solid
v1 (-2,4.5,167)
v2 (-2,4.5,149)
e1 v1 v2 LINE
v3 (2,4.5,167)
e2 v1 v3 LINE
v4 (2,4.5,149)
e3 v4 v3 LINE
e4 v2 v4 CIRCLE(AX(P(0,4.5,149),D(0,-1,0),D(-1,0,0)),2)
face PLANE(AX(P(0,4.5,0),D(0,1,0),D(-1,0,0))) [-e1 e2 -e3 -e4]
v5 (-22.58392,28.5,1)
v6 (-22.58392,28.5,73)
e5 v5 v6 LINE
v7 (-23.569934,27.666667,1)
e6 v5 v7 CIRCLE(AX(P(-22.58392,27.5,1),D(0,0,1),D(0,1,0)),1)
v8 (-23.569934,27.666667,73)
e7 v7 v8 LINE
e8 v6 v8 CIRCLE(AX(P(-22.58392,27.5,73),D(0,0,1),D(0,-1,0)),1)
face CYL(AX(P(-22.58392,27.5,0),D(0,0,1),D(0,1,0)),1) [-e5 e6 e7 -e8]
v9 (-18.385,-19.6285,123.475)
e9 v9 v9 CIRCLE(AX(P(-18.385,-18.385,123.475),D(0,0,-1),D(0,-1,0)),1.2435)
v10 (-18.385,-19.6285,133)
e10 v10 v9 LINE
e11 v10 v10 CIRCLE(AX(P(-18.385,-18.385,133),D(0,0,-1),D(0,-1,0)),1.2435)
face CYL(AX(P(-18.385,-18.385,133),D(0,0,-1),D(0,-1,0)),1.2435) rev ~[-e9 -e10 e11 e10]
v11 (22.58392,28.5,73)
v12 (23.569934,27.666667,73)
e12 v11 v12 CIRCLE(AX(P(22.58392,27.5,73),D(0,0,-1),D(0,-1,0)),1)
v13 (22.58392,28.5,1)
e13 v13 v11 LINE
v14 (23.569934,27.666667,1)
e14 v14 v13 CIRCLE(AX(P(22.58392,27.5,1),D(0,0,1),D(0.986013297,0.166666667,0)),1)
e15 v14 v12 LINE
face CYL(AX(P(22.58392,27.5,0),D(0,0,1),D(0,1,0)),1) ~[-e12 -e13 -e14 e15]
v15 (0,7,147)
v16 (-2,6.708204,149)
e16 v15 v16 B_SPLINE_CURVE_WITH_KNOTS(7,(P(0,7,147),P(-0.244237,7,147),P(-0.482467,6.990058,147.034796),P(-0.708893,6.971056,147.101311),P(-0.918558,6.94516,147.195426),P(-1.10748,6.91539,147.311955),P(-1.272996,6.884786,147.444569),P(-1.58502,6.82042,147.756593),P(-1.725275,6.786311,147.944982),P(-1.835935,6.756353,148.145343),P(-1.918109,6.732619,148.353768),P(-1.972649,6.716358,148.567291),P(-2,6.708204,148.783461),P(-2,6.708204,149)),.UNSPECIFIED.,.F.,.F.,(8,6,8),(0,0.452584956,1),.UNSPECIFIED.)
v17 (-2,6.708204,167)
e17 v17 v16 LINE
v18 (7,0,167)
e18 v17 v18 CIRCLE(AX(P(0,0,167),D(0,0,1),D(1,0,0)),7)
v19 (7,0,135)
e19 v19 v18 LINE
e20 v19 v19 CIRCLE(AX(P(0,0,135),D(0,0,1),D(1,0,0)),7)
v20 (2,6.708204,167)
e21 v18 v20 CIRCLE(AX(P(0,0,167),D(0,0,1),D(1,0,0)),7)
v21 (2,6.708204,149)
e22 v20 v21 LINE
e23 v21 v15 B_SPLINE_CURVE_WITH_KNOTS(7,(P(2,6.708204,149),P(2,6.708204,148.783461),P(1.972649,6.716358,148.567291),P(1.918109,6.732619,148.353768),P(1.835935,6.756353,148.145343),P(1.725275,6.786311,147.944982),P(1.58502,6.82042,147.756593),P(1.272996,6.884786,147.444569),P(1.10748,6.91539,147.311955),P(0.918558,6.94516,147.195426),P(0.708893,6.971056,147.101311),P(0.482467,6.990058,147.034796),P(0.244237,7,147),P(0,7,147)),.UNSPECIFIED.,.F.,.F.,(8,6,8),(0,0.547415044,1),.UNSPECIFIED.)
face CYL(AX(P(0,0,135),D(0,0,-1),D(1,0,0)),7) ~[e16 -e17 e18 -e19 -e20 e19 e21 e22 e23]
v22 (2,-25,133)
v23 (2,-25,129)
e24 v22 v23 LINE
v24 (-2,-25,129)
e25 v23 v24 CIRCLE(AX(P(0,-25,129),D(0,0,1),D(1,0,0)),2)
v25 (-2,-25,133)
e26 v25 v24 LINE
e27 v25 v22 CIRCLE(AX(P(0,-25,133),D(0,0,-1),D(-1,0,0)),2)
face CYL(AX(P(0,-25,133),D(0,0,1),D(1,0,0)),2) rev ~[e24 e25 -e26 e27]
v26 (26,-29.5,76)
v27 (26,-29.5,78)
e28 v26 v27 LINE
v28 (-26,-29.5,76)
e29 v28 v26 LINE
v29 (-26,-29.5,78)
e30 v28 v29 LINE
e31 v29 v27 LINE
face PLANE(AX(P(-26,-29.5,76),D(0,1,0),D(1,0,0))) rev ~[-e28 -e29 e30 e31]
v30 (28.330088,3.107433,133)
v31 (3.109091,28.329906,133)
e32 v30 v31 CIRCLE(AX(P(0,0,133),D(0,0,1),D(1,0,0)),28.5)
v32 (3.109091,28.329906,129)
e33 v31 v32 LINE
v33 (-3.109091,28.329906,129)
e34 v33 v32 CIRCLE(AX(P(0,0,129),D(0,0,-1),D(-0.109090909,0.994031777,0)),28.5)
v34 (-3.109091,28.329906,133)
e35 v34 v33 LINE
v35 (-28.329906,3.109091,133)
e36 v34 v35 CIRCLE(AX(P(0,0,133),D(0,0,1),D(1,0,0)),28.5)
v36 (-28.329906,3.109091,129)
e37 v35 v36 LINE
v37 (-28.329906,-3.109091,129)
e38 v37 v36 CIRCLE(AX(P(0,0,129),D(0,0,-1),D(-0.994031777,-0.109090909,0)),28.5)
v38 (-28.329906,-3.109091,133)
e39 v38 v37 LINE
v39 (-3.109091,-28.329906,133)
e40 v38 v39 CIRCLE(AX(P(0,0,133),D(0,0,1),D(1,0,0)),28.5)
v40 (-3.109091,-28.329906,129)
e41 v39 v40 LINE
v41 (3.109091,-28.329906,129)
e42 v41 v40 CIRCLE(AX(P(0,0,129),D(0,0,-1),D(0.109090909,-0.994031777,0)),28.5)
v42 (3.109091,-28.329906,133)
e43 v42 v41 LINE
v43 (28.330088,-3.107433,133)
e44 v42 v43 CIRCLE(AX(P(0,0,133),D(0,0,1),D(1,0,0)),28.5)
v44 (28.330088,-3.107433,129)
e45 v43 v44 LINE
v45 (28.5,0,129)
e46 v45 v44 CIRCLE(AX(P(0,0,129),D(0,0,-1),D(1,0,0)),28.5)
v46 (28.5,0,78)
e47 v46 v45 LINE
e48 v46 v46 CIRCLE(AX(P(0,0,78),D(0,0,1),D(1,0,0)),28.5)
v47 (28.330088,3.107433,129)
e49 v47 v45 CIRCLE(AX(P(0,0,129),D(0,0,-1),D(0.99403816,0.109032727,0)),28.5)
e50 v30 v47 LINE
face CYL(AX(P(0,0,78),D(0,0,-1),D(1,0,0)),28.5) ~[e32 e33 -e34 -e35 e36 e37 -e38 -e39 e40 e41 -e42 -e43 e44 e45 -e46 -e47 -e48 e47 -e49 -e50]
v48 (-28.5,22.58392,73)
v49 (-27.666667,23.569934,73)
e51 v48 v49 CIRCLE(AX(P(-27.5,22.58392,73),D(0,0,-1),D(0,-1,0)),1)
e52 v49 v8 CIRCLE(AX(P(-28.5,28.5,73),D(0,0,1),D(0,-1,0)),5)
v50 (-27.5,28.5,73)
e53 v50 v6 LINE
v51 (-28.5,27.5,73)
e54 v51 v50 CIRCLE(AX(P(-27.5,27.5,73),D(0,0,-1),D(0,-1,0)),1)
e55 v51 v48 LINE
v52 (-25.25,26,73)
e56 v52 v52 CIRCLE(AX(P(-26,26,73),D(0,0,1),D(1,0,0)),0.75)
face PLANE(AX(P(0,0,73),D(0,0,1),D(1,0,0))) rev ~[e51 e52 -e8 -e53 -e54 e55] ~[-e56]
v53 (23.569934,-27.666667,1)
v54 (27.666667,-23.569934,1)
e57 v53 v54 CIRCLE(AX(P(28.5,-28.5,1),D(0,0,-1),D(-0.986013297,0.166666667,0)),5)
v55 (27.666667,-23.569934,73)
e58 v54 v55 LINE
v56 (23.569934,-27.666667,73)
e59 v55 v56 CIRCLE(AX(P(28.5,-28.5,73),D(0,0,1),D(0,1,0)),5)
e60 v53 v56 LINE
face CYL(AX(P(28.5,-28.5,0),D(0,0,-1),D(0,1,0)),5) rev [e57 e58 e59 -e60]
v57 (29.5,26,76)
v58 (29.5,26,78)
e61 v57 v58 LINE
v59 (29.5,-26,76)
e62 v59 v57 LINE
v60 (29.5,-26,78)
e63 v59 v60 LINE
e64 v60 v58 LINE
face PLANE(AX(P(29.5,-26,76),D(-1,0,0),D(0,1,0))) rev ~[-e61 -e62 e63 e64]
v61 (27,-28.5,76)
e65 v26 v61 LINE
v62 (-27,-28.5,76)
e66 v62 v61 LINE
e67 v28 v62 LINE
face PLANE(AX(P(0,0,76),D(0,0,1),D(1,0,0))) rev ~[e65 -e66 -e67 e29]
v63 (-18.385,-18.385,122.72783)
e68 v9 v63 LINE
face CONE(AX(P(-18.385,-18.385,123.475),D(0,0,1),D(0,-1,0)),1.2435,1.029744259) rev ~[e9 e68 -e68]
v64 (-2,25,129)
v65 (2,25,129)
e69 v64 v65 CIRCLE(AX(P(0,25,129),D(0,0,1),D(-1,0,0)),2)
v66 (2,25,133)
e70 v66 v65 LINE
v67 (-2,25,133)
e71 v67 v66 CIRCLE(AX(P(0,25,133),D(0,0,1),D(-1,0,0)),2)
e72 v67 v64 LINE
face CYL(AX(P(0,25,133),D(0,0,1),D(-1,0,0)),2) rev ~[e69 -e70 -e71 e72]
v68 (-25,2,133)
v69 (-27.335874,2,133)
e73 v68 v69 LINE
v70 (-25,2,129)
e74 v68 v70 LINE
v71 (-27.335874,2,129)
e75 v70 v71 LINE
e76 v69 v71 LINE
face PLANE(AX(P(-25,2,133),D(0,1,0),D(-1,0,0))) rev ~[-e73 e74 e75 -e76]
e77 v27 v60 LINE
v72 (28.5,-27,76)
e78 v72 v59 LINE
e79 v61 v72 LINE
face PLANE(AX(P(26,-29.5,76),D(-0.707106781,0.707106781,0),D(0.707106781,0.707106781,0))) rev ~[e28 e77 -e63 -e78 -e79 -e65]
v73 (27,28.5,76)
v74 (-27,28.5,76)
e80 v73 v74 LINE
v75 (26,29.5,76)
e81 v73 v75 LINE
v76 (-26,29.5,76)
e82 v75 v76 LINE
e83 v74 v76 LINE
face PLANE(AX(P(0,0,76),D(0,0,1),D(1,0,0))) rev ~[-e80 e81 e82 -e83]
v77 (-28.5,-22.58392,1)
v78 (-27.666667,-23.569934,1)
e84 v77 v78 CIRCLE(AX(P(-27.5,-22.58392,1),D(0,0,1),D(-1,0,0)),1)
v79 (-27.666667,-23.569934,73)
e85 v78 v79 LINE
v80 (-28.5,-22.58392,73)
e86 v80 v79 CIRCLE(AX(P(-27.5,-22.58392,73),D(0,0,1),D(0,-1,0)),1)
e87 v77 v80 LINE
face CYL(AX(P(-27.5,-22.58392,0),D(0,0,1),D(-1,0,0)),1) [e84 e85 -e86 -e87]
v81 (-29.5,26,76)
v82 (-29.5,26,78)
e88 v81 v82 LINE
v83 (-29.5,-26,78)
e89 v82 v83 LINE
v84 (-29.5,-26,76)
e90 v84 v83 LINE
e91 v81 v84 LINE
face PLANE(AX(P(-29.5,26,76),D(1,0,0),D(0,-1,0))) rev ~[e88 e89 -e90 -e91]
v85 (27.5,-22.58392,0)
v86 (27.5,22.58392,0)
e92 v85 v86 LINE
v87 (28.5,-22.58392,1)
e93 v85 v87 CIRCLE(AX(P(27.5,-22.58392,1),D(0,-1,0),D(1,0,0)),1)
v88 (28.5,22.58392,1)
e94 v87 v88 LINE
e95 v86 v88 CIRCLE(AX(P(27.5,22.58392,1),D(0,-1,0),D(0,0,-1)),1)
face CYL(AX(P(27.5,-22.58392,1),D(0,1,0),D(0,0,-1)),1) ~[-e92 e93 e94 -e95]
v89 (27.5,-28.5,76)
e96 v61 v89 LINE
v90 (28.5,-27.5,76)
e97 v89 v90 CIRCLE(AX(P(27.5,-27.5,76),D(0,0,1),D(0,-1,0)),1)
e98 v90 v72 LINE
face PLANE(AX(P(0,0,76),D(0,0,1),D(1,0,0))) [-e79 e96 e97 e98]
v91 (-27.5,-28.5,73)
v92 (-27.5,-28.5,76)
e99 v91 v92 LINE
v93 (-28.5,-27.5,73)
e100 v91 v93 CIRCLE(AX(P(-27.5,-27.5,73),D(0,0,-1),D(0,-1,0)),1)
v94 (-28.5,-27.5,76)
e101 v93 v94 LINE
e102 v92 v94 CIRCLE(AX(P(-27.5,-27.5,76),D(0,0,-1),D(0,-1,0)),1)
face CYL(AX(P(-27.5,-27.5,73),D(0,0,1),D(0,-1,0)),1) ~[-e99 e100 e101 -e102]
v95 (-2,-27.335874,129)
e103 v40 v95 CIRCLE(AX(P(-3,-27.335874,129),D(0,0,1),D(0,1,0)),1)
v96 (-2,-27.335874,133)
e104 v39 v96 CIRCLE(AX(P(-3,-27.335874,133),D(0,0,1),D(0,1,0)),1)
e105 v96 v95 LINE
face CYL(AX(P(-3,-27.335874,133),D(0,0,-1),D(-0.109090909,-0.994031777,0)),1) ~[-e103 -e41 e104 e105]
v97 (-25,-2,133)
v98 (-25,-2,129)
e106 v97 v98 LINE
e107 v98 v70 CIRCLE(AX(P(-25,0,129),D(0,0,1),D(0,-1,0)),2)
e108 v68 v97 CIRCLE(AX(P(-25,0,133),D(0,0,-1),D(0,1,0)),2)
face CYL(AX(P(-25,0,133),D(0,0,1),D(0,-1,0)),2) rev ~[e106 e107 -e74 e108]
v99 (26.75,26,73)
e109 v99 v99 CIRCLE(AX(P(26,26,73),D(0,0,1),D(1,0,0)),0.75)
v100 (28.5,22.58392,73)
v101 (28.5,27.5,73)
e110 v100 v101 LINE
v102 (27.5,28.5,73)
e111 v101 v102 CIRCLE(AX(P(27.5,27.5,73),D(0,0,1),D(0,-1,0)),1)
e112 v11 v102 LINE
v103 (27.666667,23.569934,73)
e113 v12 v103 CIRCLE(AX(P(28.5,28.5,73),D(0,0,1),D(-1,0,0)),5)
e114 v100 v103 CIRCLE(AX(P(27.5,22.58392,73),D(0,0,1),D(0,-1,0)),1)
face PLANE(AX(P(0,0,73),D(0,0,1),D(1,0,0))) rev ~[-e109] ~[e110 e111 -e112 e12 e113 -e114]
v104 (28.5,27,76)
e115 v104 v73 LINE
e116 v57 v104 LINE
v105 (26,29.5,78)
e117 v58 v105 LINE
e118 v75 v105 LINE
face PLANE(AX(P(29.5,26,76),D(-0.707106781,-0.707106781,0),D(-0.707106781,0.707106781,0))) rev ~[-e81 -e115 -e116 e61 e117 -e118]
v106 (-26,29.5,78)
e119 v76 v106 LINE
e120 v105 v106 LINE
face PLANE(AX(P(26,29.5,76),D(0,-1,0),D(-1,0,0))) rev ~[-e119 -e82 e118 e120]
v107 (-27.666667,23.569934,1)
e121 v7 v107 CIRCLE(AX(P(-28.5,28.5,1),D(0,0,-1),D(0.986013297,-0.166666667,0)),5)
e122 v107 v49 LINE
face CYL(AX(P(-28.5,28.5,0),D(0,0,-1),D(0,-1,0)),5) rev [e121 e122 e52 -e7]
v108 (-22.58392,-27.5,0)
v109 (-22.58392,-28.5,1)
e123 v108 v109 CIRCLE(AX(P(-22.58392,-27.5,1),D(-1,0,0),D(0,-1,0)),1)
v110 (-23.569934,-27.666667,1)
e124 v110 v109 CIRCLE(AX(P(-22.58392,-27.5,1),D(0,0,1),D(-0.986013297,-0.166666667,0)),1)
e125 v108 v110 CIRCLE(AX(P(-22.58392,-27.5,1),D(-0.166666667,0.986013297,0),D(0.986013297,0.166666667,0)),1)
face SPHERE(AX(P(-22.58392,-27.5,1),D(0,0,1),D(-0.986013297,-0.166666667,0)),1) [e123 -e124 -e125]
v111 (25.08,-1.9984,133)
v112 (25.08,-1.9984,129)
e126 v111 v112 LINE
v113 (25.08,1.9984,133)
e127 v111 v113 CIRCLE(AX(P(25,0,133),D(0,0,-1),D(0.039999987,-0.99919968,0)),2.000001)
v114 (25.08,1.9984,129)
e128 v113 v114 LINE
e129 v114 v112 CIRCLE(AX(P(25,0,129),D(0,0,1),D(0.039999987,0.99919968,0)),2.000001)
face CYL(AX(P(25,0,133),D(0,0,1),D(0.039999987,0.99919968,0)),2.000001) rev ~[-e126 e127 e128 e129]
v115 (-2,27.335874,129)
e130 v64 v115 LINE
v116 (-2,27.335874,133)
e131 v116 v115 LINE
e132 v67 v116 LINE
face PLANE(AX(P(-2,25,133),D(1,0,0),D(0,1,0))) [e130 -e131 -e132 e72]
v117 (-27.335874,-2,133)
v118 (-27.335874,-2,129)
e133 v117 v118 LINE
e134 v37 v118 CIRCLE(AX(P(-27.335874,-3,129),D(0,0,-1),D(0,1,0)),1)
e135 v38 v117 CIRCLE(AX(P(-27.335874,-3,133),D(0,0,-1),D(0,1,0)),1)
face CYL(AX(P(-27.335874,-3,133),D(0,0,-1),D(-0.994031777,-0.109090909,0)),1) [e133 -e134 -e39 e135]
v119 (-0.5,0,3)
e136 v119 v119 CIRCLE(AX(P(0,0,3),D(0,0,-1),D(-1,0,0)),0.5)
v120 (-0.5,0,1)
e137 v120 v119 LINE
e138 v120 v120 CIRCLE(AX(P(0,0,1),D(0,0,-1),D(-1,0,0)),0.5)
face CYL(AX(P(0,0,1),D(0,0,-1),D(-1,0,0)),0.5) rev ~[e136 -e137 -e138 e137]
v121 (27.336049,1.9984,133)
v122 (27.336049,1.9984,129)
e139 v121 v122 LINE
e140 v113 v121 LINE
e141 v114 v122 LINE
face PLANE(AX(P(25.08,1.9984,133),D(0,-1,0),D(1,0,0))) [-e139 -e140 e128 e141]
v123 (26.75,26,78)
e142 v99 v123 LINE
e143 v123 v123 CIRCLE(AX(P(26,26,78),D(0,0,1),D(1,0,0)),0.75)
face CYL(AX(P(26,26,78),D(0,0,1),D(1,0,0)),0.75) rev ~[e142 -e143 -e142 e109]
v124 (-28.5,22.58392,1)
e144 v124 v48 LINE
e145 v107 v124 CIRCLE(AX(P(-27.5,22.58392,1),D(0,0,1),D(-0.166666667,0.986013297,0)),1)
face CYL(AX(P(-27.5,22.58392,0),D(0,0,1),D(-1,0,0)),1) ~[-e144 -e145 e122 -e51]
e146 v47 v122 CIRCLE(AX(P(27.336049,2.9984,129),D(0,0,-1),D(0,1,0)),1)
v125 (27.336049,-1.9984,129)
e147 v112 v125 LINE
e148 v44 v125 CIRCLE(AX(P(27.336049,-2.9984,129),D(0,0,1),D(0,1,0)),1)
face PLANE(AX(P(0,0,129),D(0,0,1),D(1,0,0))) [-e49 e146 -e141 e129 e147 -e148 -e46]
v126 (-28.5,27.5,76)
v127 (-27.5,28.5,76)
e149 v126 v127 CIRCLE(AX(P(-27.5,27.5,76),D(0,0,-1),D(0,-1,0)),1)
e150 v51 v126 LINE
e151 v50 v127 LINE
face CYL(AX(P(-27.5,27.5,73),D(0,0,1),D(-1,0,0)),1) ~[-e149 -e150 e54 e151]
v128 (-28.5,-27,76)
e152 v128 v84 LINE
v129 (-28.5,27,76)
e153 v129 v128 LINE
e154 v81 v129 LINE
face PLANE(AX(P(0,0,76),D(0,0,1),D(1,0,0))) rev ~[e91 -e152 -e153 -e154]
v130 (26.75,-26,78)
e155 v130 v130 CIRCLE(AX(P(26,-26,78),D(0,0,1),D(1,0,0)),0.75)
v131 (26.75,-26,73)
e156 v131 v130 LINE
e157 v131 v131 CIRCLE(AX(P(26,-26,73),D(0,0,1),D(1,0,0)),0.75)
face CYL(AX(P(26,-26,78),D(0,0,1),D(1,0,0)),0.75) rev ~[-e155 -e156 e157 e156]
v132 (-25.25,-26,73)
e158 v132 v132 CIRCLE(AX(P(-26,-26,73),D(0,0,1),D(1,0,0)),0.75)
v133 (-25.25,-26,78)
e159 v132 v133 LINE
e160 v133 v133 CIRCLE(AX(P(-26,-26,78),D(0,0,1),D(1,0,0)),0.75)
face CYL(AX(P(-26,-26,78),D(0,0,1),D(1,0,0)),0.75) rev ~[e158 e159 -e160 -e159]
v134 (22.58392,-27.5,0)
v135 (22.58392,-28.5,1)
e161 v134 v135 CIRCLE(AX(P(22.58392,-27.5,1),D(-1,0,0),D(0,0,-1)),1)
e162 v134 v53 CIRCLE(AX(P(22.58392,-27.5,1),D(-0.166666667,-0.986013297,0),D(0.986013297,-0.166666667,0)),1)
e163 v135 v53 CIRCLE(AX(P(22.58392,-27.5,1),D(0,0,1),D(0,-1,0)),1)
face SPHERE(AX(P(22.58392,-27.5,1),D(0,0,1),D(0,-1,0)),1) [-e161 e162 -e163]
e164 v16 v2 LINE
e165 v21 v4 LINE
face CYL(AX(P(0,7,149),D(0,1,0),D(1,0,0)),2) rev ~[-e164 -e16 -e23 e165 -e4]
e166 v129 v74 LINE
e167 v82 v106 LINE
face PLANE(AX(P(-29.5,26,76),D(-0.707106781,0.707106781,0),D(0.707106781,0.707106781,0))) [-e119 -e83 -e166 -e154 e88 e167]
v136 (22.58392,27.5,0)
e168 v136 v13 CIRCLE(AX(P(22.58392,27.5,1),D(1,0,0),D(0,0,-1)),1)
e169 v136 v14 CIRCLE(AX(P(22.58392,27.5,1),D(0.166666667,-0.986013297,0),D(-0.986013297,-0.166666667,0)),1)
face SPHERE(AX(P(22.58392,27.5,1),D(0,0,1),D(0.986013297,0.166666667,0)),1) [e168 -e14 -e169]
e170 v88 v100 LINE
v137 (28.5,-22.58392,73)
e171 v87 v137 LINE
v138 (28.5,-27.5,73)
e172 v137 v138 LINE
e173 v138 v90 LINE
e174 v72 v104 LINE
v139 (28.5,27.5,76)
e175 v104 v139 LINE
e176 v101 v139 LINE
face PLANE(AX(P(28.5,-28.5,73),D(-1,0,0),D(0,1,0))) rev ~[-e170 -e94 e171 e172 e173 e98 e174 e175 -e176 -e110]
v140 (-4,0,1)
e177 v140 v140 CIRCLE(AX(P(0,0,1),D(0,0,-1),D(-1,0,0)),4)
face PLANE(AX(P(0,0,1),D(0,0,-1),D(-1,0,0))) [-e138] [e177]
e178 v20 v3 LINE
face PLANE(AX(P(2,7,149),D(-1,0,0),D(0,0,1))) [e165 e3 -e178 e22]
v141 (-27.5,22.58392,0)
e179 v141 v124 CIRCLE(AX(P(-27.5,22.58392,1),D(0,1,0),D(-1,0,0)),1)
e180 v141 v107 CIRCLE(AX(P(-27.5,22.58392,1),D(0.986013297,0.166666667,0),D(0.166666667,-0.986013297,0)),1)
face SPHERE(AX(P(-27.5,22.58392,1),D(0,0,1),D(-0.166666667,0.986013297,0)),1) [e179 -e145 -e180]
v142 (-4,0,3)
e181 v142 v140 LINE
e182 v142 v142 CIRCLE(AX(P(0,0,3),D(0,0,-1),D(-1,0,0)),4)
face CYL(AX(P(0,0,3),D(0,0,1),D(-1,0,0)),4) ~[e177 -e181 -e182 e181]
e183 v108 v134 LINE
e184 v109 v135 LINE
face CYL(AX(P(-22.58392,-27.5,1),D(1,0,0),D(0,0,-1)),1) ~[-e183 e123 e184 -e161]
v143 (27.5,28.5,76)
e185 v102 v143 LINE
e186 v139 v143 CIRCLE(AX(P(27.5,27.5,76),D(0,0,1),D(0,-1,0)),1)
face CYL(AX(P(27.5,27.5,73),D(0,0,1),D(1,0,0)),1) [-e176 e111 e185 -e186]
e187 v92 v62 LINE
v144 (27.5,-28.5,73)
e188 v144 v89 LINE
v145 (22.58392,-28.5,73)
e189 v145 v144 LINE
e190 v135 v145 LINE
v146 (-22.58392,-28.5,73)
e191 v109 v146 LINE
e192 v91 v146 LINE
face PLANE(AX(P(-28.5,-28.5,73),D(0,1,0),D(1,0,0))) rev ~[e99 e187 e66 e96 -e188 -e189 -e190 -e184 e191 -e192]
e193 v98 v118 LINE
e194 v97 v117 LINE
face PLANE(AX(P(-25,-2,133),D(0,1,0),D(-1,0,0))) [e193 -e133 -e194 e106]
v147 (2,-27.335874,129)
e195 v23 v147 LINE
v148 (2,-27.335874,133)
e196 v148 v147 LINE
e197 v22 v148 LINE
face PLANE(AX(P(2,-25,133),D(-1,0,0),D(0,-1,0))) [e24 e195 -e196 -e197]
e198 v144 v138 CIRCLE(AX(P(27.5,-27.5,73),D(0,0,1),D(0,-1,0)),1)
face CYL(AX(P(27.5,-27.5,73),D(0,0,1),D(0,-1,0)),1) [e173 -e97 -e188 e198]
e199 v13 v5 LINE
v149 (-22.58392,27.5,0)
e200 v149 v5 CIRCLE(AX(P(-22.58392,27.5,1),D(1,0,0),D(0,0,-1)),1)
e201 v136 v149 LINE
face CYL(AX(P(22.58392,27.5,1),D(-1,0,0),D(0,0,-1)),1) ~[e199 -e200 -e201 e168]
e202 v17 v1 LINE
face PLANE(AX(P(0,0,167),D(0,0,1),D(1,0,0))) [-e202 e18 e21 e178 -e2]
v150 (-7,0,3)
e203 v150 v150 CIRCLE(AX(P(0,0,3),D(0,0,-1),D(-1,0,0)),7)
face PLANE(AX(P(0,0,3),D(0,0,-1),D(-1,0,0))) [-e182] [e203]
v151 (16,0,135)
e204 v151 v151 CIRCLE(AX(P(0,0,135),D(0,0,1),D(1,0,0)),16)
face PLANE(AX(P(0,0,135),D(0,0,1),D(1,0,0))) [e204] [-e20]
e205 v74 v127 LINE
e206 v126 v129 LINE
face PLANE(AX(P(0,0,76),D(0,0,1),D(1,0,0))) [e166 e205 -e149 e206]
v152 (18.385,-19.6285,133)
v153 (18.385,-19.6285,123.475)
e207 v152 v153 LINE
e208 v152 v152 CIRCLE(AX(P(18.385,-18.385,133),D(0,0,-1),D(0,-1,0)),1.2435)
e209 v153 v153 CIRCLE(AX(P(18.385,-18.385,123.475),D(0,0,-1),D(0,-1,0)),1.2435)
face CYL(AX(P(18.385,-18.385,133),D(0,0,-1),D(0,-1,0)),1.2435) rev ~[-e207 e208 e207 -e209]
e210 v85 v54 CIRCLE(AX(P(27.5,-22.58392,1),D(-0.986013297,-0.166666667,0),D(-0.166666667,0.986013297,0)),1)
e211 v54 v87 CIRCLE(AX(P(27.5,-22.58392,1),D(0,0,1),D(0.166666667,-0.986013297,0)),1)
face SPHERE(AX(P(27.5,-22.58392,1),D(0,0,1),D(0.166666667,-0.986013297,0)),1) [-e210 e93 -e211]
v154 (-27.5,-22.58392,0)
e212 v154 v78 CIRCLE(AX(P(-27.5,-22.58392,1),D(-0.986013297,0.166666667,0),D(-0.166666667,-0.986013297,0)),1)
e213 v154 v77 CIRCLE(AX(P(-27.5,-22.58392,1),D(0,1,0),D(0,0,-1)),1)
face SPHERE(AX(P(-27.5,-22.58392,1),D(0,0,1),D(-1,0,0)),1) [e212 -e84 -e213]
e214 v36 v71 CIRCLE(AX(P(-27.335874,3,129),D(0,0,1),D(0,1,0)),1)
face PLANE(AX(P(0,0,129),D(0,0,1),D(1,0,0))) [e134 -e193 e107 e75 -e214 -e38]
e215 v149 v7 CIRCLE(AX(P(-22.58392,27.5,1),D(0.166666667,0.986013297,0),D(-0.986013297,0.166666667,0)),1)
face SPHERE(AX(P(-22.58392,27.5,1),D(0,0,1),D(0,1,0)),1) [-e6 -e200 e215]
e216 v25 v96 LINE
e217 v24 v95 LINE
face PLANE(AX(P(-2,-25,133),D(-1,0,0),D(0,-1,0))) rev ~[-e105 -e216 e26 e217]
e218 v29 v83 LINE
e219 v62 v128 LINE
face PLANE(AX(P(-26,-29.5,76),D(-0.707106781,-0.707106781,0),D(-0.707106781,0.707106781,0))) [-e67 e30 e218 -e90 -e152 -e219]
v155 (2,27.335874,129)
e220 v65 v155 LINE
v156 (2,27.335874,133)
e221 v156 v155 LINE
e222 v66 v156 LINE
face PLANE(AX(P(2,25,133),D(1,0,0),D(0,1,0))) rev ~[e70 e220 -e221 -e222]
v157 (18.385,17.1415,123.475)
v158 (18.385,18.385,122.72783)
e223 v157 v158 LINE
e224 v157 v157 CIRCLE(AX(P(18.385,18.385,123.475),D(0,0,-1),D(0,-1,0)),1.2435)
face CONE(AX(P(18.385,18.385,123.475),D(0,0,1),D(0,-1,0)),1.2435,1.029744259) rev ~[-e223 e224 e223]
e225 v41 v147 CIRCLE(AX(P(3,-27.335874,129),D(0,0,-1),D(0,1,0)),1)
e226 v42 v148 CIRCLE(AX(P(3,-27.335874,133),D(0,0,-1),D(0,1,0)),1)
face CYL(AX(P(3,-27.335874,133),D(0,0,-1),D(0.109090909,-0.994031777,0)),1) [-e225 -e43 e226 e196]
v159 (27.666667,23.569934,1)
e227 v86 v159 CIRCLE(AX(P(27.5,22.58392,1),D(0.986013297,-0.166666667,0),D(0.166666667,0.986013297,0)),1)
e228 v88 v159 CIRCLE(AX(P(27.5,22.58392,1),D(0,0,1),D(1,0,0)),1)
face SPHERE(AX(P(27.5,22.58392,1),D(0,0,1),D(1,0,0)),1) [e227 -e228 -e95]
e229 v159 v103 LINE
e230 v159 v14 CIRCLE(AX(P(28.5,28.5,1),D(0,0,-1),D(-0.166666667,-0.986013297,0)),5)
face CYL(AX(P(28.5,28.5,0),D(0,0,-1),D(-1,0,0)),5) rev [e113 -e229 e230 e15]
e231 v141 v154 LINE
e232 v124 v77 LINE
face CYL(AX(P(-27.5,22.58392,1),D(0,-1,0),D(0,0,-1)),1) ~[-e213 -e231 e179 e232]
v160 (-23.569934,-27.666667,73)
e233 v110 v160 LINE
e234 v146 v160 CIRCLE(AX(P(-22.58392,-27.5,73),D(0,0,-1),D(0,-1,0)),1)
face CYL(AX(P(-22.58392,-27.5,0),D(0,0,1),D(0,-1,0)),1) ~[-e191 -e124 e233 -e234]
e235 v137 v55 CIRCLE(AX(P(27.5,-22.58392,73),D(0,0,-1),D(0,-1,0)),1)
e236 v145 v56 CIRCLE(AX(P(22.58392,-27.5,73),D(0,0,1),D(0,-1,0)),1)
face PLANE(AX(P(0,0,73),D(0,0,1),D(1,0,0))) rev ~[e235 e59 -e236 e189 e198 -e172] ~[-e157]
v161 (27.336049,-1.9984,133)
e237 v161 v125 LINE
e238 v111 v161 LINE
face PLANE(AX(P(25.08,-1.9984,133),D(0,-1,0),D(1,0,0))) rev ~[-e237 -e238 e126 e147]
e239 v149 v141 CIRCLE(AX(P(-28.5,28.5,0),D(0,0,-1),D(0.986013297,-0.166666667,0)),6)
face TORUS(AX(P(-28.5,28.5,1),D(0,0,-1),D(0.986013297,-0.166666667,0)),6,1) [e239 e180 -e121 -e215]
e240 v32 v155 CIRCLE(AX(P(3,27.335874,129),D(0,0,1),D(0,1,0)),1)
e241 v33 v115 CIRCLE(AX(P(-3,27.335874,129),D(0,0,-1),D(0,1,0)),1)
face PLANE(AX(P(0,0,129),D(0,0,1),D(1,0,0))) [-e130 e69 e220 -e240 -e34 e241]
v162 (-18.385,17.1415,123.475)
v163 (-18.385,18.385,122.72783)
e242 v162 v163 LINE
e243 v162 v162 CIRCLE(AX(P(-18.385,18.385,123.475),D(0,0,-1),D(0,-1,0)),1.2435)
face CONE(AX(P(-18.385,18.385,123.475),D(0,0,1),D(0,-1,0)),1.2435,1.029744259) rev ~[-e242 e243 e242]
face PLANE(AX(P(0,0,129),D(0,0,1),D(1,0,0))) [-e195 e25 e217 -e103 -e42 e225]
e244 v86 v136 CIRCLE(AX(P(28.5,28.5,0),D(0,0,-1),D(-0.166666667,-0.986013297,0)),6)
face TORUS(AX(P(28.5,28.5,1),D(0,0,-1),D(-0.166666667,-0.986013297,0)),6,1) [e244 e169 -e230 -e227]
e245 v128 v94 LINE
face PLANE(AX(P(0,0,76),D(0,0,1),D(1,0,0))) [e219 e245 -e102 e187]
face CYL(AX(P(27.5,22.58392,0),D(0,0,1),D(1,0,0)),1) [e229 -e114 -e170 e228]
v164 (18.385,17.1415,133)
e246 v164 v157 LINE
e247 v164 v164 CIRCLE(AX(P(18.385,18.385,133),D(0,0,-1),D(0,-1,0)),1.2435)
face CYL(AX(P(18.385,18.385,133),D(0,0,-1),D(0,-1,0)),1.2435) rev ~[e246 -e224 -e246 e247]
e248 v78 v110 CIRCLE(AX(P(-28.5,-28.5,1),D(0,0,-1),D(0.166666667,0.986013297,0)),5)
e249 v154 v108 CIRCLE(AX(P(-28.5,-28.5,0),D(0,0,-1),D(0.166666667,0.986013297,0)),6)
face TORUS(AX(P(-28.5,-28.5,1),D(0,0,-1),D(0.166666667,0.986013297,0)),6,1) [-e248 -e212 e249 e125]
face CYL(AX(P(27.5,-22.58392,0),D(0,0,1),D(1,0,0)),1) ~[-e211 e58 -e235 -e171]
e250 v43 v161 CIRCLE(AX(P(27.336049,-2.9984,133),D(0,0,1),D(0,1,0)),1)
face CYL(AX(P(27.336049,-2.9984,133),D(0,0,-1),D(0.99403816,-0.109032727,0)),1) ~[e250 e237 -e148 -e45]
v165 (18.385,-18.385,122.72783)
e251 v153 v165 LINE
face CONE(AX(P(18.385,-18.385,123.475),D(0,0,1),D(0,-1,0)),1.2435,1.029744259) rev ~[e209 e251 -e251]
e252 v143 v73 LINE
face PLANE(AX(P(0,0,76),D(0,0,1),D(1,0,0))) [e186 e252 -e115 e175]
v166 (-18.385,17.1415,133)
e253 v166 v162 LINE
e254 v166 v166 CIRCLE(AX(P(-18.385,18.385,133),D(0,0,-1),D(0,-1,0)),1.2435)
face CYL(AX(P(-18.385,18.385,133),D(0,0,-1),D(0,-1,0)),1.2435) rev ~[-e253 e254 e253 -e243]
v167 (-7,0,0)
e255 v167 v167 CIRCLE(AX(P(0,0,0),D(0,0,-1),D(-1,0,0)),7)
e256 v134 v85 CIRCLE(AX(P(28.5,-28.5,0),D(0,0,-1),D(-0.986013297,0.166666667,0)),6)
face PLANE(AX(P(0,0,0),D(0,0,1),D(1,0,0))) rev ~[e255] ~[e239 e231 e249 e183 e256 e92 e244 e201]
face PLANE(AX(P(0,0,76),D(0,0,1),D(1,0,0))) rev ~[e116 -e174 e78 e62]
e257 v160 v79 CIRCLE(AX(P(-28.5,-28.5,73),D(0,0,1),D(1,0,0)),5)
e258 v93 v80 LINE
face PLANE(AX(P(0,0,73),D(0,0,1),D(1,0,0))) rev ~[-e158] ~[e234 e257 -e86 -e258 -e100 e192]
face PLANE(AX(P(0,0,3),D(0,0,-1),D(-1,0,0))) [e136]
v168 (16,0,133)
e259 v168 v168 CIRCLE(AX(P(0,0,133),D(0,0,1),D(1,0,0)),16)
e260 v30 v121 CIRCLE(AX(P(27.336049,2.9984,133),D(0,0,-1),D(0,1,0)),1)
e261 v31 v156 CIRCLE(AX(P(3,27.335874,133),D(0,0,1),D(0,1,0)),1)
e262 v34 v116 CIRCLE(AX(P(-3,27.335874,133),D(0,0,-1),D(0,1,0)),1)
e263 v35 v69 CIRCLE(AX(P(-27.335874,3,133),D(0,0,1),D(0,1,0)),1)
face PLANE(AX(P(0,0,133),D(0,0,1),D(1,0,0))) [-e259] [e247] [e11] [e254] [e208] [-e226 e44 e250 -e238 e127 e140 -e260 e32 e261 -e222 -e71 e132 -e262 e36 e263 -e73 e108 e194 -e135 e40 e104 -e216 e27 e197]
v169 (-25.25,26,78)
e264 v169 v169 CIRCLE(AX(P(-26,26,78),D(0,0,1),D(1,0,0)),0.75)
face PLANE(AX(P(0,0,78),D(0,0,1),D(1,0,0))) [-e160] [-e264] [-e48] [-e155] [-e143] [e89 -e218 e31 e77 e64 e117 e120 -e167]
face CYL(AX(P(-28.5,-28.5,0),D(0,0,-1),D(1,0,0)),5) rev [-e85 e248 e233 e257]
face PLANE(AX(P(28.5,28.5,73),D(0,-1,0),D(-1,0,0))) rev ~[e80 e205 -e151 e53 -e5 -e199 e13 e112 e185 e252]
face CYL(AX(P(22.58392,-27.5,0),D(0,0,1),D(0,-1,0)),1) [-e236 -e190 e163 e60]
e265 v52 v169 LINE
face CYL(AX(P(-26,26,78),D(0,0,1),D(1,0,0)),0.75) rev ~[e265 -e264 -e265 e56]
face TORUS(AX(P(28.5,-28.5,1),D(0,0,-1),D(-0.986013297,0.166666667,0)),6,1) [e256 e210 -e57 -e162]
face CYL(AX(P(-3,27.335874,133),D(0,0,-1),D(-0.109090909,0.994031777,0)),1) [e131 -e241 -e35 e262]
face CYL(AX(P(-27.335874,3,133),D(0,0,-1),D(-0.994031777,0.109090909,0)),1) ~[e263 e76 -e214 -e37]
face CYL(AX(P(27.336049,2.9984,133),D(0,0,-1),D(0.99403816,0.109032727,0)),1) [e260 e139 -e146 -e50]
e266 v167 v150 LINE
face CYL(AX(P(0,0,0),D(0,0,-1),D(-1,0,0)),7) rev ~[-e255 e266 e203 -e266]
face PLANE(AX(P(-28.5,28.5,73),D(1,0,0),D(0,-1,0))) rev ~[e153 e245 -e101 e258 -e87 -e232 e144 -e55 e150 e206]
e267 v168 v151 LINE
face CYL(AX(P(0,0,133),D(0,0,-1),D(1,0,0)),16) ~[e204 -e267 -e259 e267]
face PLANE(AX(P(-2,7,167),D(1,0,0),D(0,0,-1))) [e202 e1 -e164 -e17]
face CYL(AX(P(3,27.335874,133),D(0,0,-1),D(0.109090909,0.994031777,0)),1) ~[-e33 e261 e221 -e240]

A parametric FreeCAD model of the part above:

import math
import FreeCAD as App
import Part
import Sketcher
from FreeCAD import Vector


def edges_at(feature, points):
    """Names of the edges that pass closest to the given points."""
    edges = feature.Shape.Edges
    near = lambda p: min(range(len(edges)), key=lambda i: edges[i].distToShape(Part.Vertex(*p))[0])
    return sorted({f"Edge{near(p) + 1}" for p in points})


def add_polygon(sketch, points):
    """Adds a closed chain of lines whose ends are joined by coincident constraints."""
    first, n = sketch.GeometryCount, len(points)
    for a, b in zip(points, points[1:] + points[:1]):
        sketch.addGeometry(Part.LineSegment(App.Vector(*a, 0), App.Vector(*b, 0)), False)
    for i in range(n):
        sketch.addConstraint(Sketcher.Constraint("Coincident", first + i, 2, first + (i + 1) % n, 1))

doc = App.newDocument("Part")
body = doc.addObject("PartDesign::Body", "Body")

sketch1 = body.newObject("Sketcher::SketchObject", "Sketch")
sketch1.AttachmentSupport = (doc.getObject("XY_Plane"), [""])
sketch1.MapMode = "FlatFace"
sketch1.addGeometry([
    Part.ArcOfCircle(Part.Circle(Vector(-28, -28, 0), Vector(0, 0, 1), 5), math.radians(0), math.radians(90)),
    Part.LineSegment(Vector(-24, -28, 0), Vector(24, -28, 0)),
    Part.ArcOfCircle(Part.Circle(Vector(28, -28, 0), Vector(0, 0, 1), 5), math.radians(90), math.radians(180)),
    Part.LineSegment(Vector(28, -24, 0), Vector(28, 24, 0)),
    Part.ArcOfCircle(Part.Circle(Vector(28, 28, 0), Vector(0, 0, 1), 5), math.radians(180), math.radians(270)),
    Part.LineSegment(Vector(24, 28, 0), Vector(-24, 28, 0)),
    Part.ArcOfCircle(Part.Circle(Vector(-28, 28, 0), Vector(0, 0, 1), 5), math.radians(-90), math.radians(0)),
    Part.LineSegment(Vector(-28, 24, 0), Vector(-28, -24, 0)),
], False)
sketch1.addConstraint([
    Sketcher.Constraint("Coincident", 0, 1, 1, 1),
    Sketcher.Constraint("Coincident", 1, 2, 2, 2),
    Sketcher.Constraint("Coincident", 2, 1, 3, 1),
    Sketcher.Constraint("Coincident", 3, 2, 4, 2),
    Sketcher.Constraint("Coincident", 4, 1, 5, 1),
    Sketcher.Constraint("Coincident", 5, 2, 6, 2),
    Sketcher.Constraint("Coincident", 6, 1, 7, 1),
    Sketcher.Constraint("Coincident", 7, 2, 0, 2),
    Sketcher.Constraint("Horizontal", 1),
    Sketcher.Constraint("Vertical", 3),
    Sketcher.Constraint("Horizontal", 5),
    Sketcher.Constraint("Vertical", 7),
    Sketcher.Constraint("Equal", 0, 2),
    Sketcher.Constraint("Equal", 2, 4),
    Sketcher.Constraint("Equal", 4, 6),
    Sketcher.Constraint("Symmetric", 0, 3, 4, 3, -1, 1),
    Sketcher.Constraint("Symmetric", 2, 3, 6, 3, -1, 1),
    Sketcher.Constraint("Symmetric", 0, 3, 2, 3, -2),
    Sketcher.Constraint("Horizontal", 2, 3, 0, 1),
    Sketcher.Constraint("Horizontal", 6, 3, 4, 1),
    Sketcher.Constraint("Vertical", 4, 3, 2, 1),
    Sketcher.Constraint("Vertical", 0, 3, 6, 1),
    Sketcher.Constraint("Equal", 5, 3),
    Sketcher.Constraint("Radius", 0, 5.0),
    Sketcher.Constraint("DistanceX", 0, 3, 2, 3, 57.0),
])
pad1 = body.newObject("PartDesign::Pad", "Pad")
pad1.Profile = sketch1
pad1.Length = 73

sketch2 = body.newObject("Sketcher::SketchObject", "Sketch001")
sketch2.AttachmentSupport = (doc.getObject("XY_Plane"), [""])
sketch2.MapMode = "FlatFace"
sketch2.AttachmentOffset = App.Placement(Vector(0, 0, 73), App.Rotation())
add_polygon(sketch2, [(-28, 28), (-28, -28), (28, -28), (28, 28)])
sketch2.addConstraint([
    Sketcher.Constraint("Vertical", 0),
    Sketcher.Constraint("Horizontal", 1),
    Sketcher.Constraint("Vertical", 2),
    Sketcher.Constraint("Horizontal", 3),
    Sketcher.Constraint("Symmetric", 0, 2, 2, 2, -1, 1),
    Sketcher.Constraint("Equal", 3, 0),
    Sketcher.Constraint("DistanceX", 1, 1, 1, 2, 57.0),
])
pad2 = body.newObject("PartDesign::Pad", "Pad001")
pad2.Profile = sketch2
pad2.Length = 3

sketch3 = body.newObject("Sketcher::SketchObject", "Sketch002")
sketch3.AttachmentSupport = (doc.getObject("XY_Plane"), [""])
sketch3.MapMode = "FlatFace"
sketch3.AttachmentOffset = App.Placement(Vector(0, 0, 76), App.Rotation())
sketch3.addGeometry([
    Part.Circle(Vector(-26, 26, 0), Vector(0, 0, 1), 0.8),
    Part.Circle(Vector(26, 26, 0), Vector(0, 0, 1), 0.8),
    Part.Circle(Vector(-26, -26, 0), Vector(0, 0, 1), 0.8),
    Part.Circle(Vector(26, -26, 0), Vector(0, 0, 1), 0.8),
], False)
sketch3.addConstraint([
    Sketcher.Constraint("Equal", 0, 1),
    Sketcher.Constraint("Equal", 1, 2),
    Sketcher.Constraint("Equal", 2, 3),
    Sketcher.Constraint("Symmetric", 1, 3, 2, 3, -1, 1),
    Sketcher.Constraint("Symmetric", 0, 3, 3, 3, -1, 1),
    Sketcher.Constraint("Symmetric", 0, 3, 1, 3, -2),
    Sketcher.Constraint("Diameter", 0, 1.5),
    Sketcher.Constraint("DistanceX", 0, 3, -1, 1, 26.0),
    Sketcher.Constraint("DistanceY", -1, 1, 0, 3, 26.0),
])
pocket1 = body.newObject("PartDesign::Pocket", "Pocket")
pocket1.Profile = sketch3
pocket1.Length = 3

sketch4 = body.newObject("Sketcher::SketchObject", "Sketch003")
sketch4.AttachmentSupport = (doc.getObject("XY_Plane"), [""])
sketch4.MapMode = "FlatFace"
sketch4.AttachmentOffset = App.Placement(Vector(0, 0, 76), App.Rotation())
add_polygon(sketch4, [(-29.5, -26), (-26, -29.5), (26, -29.5), (29.5, -26), (29.5, 26), (26, 29.5), (-26, 29.5), (-29.5, 26)])
sketch4.addConstraint([
    Sketcher.Constraint("Horizontal", 1),
    Sketcher.Constraint("Vertical", 3),
    Sketcher.Constraint("Horizontal", 5),
    Sketcher.Constraint("Vertical", 7),
    Sketcher.Constraint("Symmetric", 0, 2, 4, 2, -1, 1),
    Sketcher.Constraint("Symmetric", 2, 2, 6, 2, -1, 1),
    Sketcher.Constraint("Perpendicular", 0, 2),
    Sketcher.Constraint("Perpendicular", 2, 4),
    Sketcher.Constraint("Perpendicular", 4, 6),
    Sketcher.Constraint("Horizontal", 3, 2, 6, 2),
    Sketcher.Constraint("Vertical", 1, 2, 4, 2),
    Sketcher.Constraint("Equal", 5, 3),
    Sketcher.Constraint("DistanceY", 1, 2, 4, 2, 59.0),
    Sketcher.Constraint("DistanceX", 1, 1, 1, 2, 52.0),
])
pad3 = body.newObject("PartDesign::Pad", "Pad002")
pad3.Profile = sketch4
pad3.Length = 2

sketch5 = body.newObject("Sketcher::SketchObject", "Sketch004")
sketch5.AttachmentSupport = (doc.getObject("XY_Plane"), [""])
sketch5.MapMode = "FlatFace"
sketch5.AttachmentOffset = App.Placement(Vector(0, 0, 78), App.Rotation())
sketch5.addGeometry([
    Part.Circle(Vector(26, 26, 0), Vector(0, 0, 1), 0.8),
    Part.Circle(Vector(26, -26, 0), Vector(0, 0, 1), 0.8),
    Part.Circle(Vector(-26, -26, 0), Vector(0, 0, 1), 0.8),
    Part.Circle(Vector(-26, 26, 0), Vector(0, 0, 1), 0.8),
], False)
sketch5.addConstraint([
    Sketcher.Constraint("Equal", 0, 1),
    Sketcher.Constraint("Equal", 1, 2),
    Sketcher.Constraint("Equal", 2, 3),
    Sketcher.Constraint("Symmetric", 0, 3, 2, 3, -1, 1),
    Sketcher.Constraint("Symmetric", 1, 3, 3, 3, -1, 1),
    Sketcher.Constraint("Symmetric", 1, 3, 2, 3, -2),
    Sketcher.Constraint("Diameter", 0, 1.5),
    Sketcher.Constraint("DistanceX", -1, 1, 0, 3, 26.0),
    Sketcher.Constraint("DistanceY", -1, 1, 0, 3, 26.0),
])
pocket2 = body.newObject("PartDesign::Pocket", "Pocket001")
pocket2.Profile = sketch5
pocket2.Length = 2

sketch6 = body.newObject("Sketcher::SketchObject", "Sketch005")
sketch6.AttachmentSupport = (doc.getObject("XY_Plane"), [""])
sketch6.MapMode = "FlatFace"
sketch6.AttachmentOffset = App.Placement(Vector(0, 0, 78), App.Rotation())
sketch6.addGeometry(Part.Circle(Vector(0, 0, 0), Vector(0, 0, 1), 28), False)
sketch6.addConstraint([
    Sketcher.Constraint("Coincident", 0, 3, -1, 1),
    Sketcher.Constraint("Diameter", 0, 57.0),
])
pad4 = body.newObject("PartDesign::Pad", "Pad003")
pad4.Profile = sketch6
pad4.Length = 55

sketch7 = body.newObject("Sketcher::SketchObject", "Sketch006")
sketch7.AttachmentSupport = (doc.getObject("XY_Plane"), [""])
sketch7.MapMode = "FlatFace"
sketch7.AttachmentOffset = App.Placement(Vector(0, 0, 133), App.Rotation())
sketch7.addGeometry([
    Part.LineSegment(Vector(2, -28.4, 0), Vector(2, -25, 0)),
    Part.ArcOfCircle(Part.Circle(Vector(0, -25, 0), Vector(0, 0, 1), 2), math.radians(0), math.radians(180)),
    Part.LineSegment(Vector(-2, -25, 0), Vector(-2, -28.4, 0)),
    Part.ArcOfCircle(Part.Circle(Vector(0, 0, 0), Vector(0, 0, 1), 28.5), math.radians(-94.02), math.radians(-85.98)),
    Part.LineSegment(Vector(25.1, -2, 0), Vector(28.4, -2, 0)),
    Part.ArcOfCircle(Part.Circle(Vector(0, 0, 0), Vector(0, 0, 1), 28.5), math.radians(-4.02), math.radians(4.02)),
    Part.LineSegment(Vector(28.4, 2, 0), Vector(25.1, 2, 0)),
    Part.ArcOfCircle(Part.Circle(Vector(25, 0, 0), Vector(0, 0, 1), 2), math.radians(88), math.radians(272)),
    Part.ArcOfCircle(Part.Circle(Vector(0, 0, 0), Vector(0, 0, 1), 28.5), math.radians(175.98), math.radians(184.02)),
    Part.LineSegment(Vector(-28.4, -2, 0), Vector(-25, -2, 0)),
    Part.ArcOfCircle(Part.Circle(Vector(-25, 0, 0), Vector(0, 0, 1), 2), math.radians(-90), math.radians(90)),
    Part.LineSegment(Vector(-25, 2, 0), Vector(-28.4, 2, 0)),
    Part.LineSegment(Vector(2, 25, 0), Vector(2, 28.4, 0)),
    Part.ArcOfCircle(Part.Circle(Vector(0, 0, 0), Vector(0, 0, 1), 28.5), math.radians(85.98), math.radians(94.02)),
    Part.LineSegment(Vector(-2, 28.4, 0), Vector(-2, 25, 0)),
    Part.ArcOfCircle(Part.Circle(Vector(0, 25, 0), Vector(0, 0, 1), 2), math.radians(180), math.radians(360)),
], False)
sketch7.addConstraint([
    Sketcher.Constraint("Tangent", 0, 2, 1, 1),
    Sketcher.Constraint("Tangent", 1, 2, 2, 1),
    Sketcher.Constraint("Coincident", 2, 2, 3, 1),
    Sketcher.Constraint("Coincident", 3, 2, 0, 1),
    Sketcher.Constraint("Coincident", 4, 2, 5, 1),
    Sketcher.Constraint("Coincident", 5, 2, 6, 1),
    Sketcher.Constraint("Coincident", 6, 2, 7, 1),
    Sketcher.Constraint("Coincident", 7, 2, 4, 1),
    Sketcher.Constraint("Coincident", 8, 2, 9, 1),
    Sketcher.Constraint("Tangent", 9, 2, 10, 1),
    Sketcher.Constraint("Tangent", 10, 2, 11, 1),
    Sketcher.Constraint("Coincident", 11, 2, 8, 1),
    Sketcher.Constraint("Coincident", 12, 2, 13, 1),
    Sketcher.Constraint("Coincident", 13, 2, 14, 1),
    Sketcher.Constraint("Tangent", 14, 2, 15, 1),
    Sketcher.Constraint("Tangent", 15, 2, 12, 1),
    Sketcher.Constraint("Vertical", 0),
    Sketcher.Constraint("Vertical", 2),
    Sketcher.Constraint("Horizontal", 4),
    Sketcher.Constraint("Horizontal", 6),
    Sketcher.Constraint("Horizontal", 9),
    Sketcher.Constraint("Horizontal", 11),
    Sketcher.Constraint("Vertical", 12),
    Sketcher.Constraint("Vertical", 14),
    Sketcher.Constraint("Coincident", 3, 3, -1, 1),
    Sketcher.Constraint("Coincident", 5, 3, -1, 1),
    Sketcher.Constraint("Coincident", 8, 3, -1, 1),
    Sketcher.Constraint("Coincident", 13, 3, -1, 1),
    Sketcher.Constraint("Equal", 3, 5),
    Sketcher.Constraint("Equal", 1, 7),
    Sketcher.Constraint("Equal", 5, 8),
    Sketcher.Constraint("Equal", 7, 10),
    Sketcher.Constraint("Equal", 8, 13),
    Sketcher.Constraint("Equal", 10, 15),
    Sketcher.Constraint("Symmetric", 7, 3, 10, 3, -1, 1),
    Sketcher.Constraint("Symmetric", 1, 3, 15, 3, -1, 1),
    Sketcher.Constraint("Symmetric", 6, 2, 7, 2, -1),
    Sketcher.Constraint("PointOnObject", 1, 3, -2),
    Sketcher.Constraint("Equal", 11, 0),
    Sketcher.Constraint("Radius", 1, 2.0),
    Sketcher.Constraint("DistanceX", 10, 3, 7, 3, 50.0),
    Sketcher.Constraint("Radius", 3, 28.5),
    Sketcher.Constraint("DistanceX", 4, 1, 4, 2, 3.35),
])
pocket3 = body.newObject("PartDesign::Pocket", "Pocket002")
pocket3.Profile = sketch7
pocket3.Length = 4
doc.recompute()

fillet = body.newObject("PartDesign::Fillet", "Fillet")
fillet.Base = (pocket3, edges_at(pocket3, [
    (-2, -28.43, 131),
    (2, -28.43, 131),
    (28.43, -1.998, 131),
    (28.43, 1.998, 131),
    (-2, 28.43, 131),
    (2, 28.43, 131),
    (-28.43, -2, 131),
    (-28.43, 2, 131),
]))
fillet.Radius = 1

sketch8 = body.newObject("Sketcher::SketchObject", "Sketch007")
sketch8.AttachmentSupport = (doc.getObject("XY_Plane"), [""])
sketch8.MapMode = "FlatFace"
sketch8.AttachmentOffset = App.Placement(Vector(0, 0, 133), App.Rotation())
sketch8.addGeometry(Part.Circle(Vector(0, 0, 0), Vector(0, 0, 1), 16), False)
sketch8.addConstraint([
    Sketcher.Constraint("Coincident", 0, 3, -1, 1),
    Sketcher.Constraint("Diameter", 0, 32.0),
])
pad5 = body.newObject("PartDesign::Pad", "Pad004")
pad5.Profile = sketch8
pad5.Length = 2

sketch9 = body.newObject("Sketcher::SketchObject", "Sketch008")
sketch9.AttachmentSupport = (doc.getObject("XY_Plane"), [""])
sketch9.MapMode = "FlatFace"
sketch9.AttachmentOffset = App.Placement(Vector(0, 0, 135), App.Rotation())
sketch9.addGeometry(Part.Circle(Vector(0, 0, 0), Vector(0, 0, 1), 7), False)
sketch9.addConstraint([
    Sketcher.Constraint("Coincident", 0, 3, -1, 1),
    Sketcher.Constraint("Diameter", 0, 14.0),
])
pad6 = body.newObject("PartDesign::Pad", "Pad005")
pad6.Profile = sketch9
pad6.Length = 32

sketch10 = body.newObject("Sketcher::SketchObject", "Sketch009")
sketch10.AttachmentSupport = (doc.getObject("XZ_Plane"), [""])
sketch10.MapMode = "FlatFace"
sketch10.AttachmentOffset = App.Placement(Vector(0, 0, -7), App.Rotation())
sketch10.addGeometry([
    Part.LineSegment(Vector(-2, 149, 0), Vector(-2, 167, 0)),
    Part.LineSegment(Vector(-2, 167, 0), Vector(2, 167, 0)),
    Part.LineSegment(Vector(2, 167, 0), Vector(2, 149, 0)),
    Part.ArcOfCircle(Part.Circle(Vector(0, 149, 0), Vector(0, 0, 1), 2), math.radians(180), math.radians(360)),
], False)
sketch10.addConstraint([
    Sketcher.Constraint("Coincident", 0, 2, 1, 1),
    Sketcher.Constraint("Coincident", 1, 2, 2, 1),
    Sketcher.Constraint("Tangent", 2, 2, 3, 2),
    Sketcher.Constraint("Tangent", 3, 1, 0, 1),
    Sketcher.Constraint("Vertical", 0),
    Sketcher.Constraint("Horizontal", 1),
    Sketcher.Constraint("Vertical", 2),
    Sketcher.Constraint("PointOnObject", 3, 3, -2),
    Sketcher.Constraint("Radius", 3, 2.0),
    Sketcher.Constraint("DistanceY", 0, 1, 0, 2, 18.0),
    Sketcher.Constraint("DistanceY", -1, 1, 3, 3, 149.0),
])
pocket4 = body.newObject("PartDesign::Pocket", "Pocket003")
pocket4.Profile = sketch10
pocket4.Length = 2.5
pocket4.Reversed = True
doc.recompute()

fillet2 = body.newObject("PartDesign::Fillet", "Fillet001")
fillet2.Base = (pocket4, edges_at(pocket4, [
    (-28.5, 23.5, 36.5),
    (-23.5, 28.5, 36.5),
    (23.5, 28.5, 36.5),
    (28.5, 23.5, 36.5),
    (23.5, -28.5, 36.5),
    (28.5, -23.5, 36.5),
    (-23.5, -28.5, 36.5),
    (-28.5, -23.5, 36.5),
]))
fillet2.Radius = 1
doc.recompute()

fillet3 = body.newObject("PartDesign::Fillet", "Fillet002")
fillet3.Base = (fillet2, edges_at(fillet2, [
    (-28.5, 28.5, 74.5),
    (-28.5, -28.5, 74.5),
    (28.5, -28.5, 74.5),
    (28.5, 28.5, 74.5),
]))
fillet3.Radius = 1
doc.recompute()

fillet4 = body.newObject("PartDesign::Fillet", "Fillet003")
fillet4.Base = (fillet3, edges_at(fillet3, [
    (0, 28.5, 0),
    (-24.965, 24.965, 0),
    (-28.5, 0, 0),
    (-24.965, -24.965, 0),
    (0, -28.5, 0),
    (24.965, -24.965, 0),
    (28.5, 0, 0),
    (24.965, 24.965, 0),
]))
fillet4.Radius = 1

sketch11 = body.newObject("Sketcher::SketchObject", "Sketch010")
sketch11.AttachmentSupport = (doc.getObject("XY_Plane"), [""])
sketch11.MapMode = "FlatFace"
sketch11.addGeometry(Part.Circle(Vector(0, 0, 0), Vector(0, 0, 1), 7), False)
sketch11.addConstraint([
    Sketcher.Constraint("Coincident", 0, 3, -1, 1),
    Sketcher.Constraint("Diameter", 0, 14.0),
])
pocket5 = body.newObject("PartDesign::Pocket", "Pocket004")
pocket5.Profile = sketch11
pocket5.Length = 3
pocket5.Reversed = True

sketch12 = body.newObject("Sketcher::SketchObject", "Sketch011")
sketch12.AttachmentSupport = (doc.getObject("XY_Plane"), [""])
sketch12.MapMode = "FlatFace"
sketch12.AttachmentOffset = App.Placement(Vector(0, 0, 3), App.Rotation())
sketch12.addGeometry(Part.Circle(Vector(0, 0, 0), Vector(0, 0, 1), 4), False)
sketch12.addConstraint([
    Sketcher.Constraint("Coincident", 0, 3, -1, 1),
    Sketcher.Constraint("Diameter", 0, 8.0),
])
pad7 = body.newObject("PartDesign::Pad", "Pad006")
pad7.Profile = sketch12
pad7.Length = 2
pad7.Reversed = True

sketch13 = body.newObject("Sketcher::SketchObject", "Sketch012")
sketch13.AttachmentSupport = (doc.getObject("XY_Plane"), [""])
sketch13.MapMode = "FlatFace"
sketch13.AttachmentOffset = App.Placement(Vector(0, 0, 1), App.Rotation())
sketch13.addGeometry(Part.Circle(Vector(0, 0, 0), Vector(0, 0, 1), 0.5), False)
sketch13.addConstraint([
    Sketcher.Constraint("Coincident", 0, 3, -1, 1),
    Sketcher.Constraint("Diameter", 0, 1.0),
])
pocket6 = body.newObject("PartDesign::Pocket", "Pocket005")
pocket6.Profile = sketch13
pocket6.Length = 2
pocket6.Reversed = True

sketch14 = body.newObject("Sketcher::SketchObject", "Sketch013")
sketch14.AttachmentSupport = (doc.getObject("XY_Plane"), [""])
sketch14.MapMode = "FlatFace"
sketch14.AttachmentOffset = App.Placement(Vector(0, 0, 133), App.Rotation())
sketch14.addGeometry([
    Part.Circle(Vector(-18.4, 18.4, 0), Vector(0, 0, 1), 1.2),
    Part.Circle(Vector(18.4, 18.4, 0), Vector(0, 0, 1), 1.2),
    Part.Circle(Vector(-18.4, -18.4, 0), Vector(0, 0, 1), 1.2),
    Part.Circle(Vector(18.4, -18.4, 0), Vector(0, 0, 1), 1.2),
], False)
sketch14.addConstraint([
    Sketcher.Constraint("Equal", 0, 1),
    Sketcher.Constraint("Equal", 1, 2),
    Sketcher.Constraint("Equal", 2, 3),
    Sketcher.Constraint("Symmetric", 1, 3, 2, 3, -1, 1),
    Sketcher.Constraint("Symmetric", 0, 3, 3, 3, -1, 1),
    Sketcher.Constraint("Symmetric", 0, 3, 1, 3, -2),
    Sketcher.Constraint("Diameter", 0, 2.487),
    Sketcher.Constraint("DistanceX", 0, 3, 1, 3, 36.77),
    Sketcher.Constraint("DistanceY", 2, 3, 0, 3, 36.77),
])
doc.recompute()
hole = body.newObject("PartDesign::Hole", "Hole")
hole.Profile = sketch14
hole.ThreadType = "None"
hole.Diameter = 2.487
hole.DepthType = "Dimension"
hole.Depth = 9.525
hole.DrillPoint = "Angled"
hole.DrillPointAngle = 118

doc.recompute()
